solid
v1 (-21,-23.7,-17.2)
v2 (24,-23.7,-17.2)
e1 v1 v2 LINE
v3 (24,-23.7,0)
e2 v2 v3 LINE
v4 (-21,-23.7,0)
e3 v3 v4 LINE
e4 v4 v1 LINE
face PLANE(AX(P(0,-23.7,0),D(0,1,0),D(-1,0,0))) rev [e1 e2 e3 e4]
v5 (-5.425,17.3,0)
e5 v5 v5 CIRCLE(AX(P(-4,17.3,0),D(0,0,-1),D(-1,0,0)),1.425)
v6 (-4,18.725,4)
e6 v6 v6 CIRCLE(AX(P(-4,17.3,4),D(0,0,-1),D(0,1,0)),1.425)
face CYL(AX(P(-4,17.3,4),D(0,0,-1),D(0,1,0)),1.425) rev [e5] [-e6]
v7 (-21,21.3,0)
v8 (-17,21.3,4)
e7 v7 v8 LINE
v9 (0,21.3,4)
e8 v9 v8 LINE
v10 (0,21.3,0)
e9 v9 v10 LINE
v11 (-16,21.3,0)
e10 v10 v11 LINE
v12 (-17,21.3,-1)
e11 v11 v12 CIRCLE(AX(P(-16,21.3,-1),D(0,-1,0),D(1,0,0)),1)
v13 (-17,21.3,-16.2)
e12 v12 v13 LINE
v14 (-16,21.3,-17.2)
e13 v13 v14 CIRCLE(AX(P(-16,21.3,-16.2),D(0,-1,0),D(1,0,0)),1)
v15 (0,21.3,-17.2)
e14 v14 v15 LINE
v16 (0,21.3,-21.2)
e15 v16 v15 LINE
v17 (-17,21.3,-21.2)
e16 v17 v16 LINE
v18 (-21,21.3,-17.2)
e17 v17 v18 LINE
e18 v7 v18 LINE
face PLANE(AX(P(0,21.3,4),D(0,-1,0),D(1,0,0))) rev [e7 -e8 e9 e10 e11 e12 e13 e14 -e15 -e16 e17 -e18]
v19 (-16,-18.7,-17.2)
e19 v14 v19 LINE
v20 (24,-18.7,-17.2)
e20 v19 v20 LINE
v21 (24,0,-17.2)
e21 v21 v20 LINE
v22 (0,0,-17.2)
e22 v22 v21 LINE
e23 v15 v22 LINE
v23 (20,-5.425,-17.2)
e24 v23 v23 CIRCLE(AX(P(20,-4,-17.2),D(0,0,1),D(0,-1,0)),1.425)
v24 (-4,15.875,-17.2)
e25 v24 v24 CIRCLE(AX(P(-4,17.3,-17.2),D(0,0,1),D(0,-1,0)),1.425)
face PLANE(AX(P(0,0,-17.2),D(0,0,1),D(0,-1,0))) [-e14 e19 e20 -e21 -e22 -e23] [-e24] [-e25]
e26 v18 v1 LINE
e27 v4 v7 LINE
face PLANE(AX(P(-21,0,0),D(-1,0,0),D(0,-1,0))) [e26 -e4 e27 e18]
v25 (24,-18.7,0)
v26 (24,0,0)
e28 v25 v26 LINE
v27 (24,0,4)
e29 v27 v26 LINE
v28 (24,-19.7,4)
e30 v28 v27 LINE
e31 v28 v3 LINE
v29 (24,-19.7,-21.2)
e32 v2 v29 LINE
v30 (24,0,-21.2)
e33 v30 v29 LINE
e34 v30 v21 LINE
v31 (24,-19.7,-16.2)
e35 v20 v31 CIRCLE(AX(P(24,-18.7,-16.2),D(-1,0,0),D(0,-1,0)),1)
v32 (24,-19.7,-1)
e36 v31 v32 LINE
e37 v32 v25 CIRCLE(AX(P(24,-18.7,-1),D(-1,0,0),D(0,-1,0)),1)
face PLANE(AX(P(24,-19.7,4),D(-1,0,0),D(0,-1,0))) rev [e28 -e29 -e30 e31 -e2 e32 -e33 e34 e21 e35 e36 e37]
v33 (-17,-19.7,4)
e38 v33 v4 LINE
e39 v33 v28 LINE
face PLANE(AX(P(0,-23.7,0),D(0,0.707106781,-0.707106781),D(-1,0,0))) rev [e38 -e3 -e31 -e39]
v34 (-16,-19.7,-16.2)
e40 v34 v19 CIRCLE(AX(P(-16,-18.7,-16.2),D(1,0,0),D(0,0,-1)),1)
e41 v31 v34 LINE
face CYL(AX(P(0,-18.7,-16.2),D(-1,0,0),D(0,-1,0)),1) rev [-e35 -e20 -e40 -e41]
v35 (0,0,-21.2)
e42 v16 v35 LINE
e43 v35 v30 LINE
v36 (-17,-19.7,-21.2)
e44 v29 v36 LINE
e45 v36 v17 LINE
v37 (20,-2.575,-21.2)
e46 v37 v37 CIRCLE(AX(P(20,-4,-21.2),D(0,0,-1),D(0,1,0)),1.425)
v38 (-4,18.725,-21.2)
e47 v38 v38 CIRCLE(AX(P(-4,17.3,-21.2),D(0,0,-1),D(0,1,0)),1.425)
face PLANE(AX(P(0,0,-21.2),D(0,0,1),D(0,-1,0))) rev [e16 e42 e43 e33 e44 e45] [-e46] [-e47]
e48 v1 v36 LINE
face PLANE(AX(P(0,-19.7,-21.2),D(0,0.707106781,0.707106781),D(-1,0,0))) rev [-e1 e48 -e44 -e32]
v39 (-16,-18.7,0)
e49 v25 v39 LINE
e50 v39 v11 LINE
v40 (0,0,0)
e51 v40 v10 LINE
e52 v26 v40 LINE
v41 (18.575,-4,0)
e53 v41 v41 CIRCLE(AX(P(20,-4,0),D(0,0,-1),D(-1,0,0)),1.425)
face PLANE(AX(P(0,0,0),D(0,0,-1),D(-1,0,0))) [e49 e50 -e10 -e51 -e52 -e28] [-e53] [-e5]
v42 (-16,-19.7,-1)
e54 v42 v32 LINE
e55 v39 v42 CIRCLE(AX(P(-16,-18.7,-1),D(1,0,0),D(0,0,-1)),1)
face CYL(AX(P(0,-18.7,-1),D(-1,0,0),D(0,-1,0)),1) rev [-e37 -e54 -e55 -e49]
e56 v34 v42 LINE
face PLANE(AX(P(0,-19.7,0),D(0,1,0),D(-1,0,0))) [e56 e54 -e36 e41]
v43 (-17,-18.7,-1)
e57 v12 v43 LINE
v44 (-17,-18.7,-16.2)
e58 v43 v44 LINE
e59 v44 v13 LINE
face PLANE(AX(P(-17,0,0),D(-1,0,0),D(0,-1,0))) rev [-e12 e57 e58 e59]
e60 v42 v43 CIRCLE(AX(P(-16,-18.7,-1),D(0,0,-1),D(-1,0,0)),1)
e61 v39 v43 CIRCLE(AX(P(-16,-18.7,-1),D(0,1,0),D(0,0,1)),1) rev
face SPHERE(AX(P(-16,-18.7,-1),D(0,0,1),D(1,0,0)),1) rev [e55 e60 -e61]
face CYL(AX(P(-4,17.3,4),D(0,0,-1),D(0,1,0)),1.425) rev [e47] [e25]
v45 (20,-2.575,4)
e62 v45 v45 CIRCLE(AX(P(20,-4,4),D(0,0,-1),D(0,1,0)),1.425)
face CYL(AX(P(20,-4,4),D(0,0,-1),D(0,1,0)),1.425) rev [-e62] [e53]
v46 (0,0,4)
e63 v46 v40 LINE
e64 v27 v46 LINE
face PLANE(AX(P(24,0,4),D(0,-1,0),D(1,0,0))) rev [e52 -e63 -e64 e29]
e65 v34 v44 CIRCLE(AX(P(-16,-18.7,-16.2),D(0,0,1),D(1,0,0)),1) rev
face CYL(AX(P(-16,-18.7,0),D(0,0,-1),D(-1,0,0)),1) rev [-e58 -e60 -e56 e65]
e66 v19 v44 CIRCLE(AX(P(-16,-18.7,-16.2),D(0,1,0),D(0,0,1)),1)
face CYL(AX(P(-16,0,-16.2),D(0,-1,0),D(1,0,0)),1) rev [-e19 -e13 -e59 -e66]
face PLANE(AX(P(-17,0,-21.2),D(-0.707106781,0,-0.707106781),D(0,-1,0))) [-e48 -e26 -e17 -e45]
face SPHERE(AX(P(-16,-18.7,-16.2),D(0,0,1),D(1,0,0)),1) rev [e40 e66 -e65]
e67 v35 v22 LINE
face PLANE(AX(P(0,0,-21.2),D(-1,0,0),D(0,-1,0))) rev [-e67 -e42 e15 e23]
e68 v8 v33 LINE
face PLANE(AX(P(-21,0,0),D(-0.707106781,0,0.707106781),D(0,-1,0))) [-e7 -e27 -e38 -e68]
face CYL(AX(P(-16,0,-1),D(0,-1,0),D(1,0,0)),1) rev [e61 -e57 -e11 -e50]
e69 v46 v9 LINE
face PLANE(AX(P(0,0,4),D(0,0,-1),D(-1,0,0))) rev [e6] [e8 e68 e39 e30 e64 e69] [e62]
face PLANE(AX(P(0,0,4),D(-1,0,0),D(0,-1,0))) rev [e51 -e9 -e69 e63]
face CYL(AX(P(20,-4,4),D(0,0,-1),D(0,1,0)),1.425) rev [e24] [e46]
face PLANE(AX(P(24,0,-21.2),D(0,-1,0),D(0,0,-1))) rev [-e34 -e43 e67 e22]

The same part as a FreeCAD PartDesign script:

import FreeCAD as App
import Part
import Sketcher


def edges_at(feature, points):
    """Names of the edges that pass closest to the given points."""
    edges = feature.Shape.Edges
    near = lambda p: min(range(len(edges)), key=lambda i: edges[i].distToShape(Part.Vertex(*p))[0])
    return sorted({f"Edge{near(p) + 1}" for p in points})

doc = App.newDocument("Part")
body = doc.addObject("PartDesign::Body", "Body")

# Sketch on XY plane
sketch1 = body.newObject("Sketcher::SketchObject", "Sketch")
sketch1.AttachmentSupport = (doc.getObject("XY_Plane"), [""])
sketch1.MapMode = "FlatFace"
sketch1.addGeometry([
    Part.LineSegment(App.Vector(0, 0, 0), App.Vector(0, 21.3, 0)),  # 0
    Part.LineSegment(App.Vector(0, 21.3, 0), App.Vector(-17, 21.3, 0)),  # 1
    Part.LineSegment(App.Vector(-17, 21.3, 0), App.Vector(-17, -19.7, 0)),  # 2
    Part.LineSegment(App.Vector(-17, -19.7, 0), App.Vector(24, -19.7, 0)),  # 3
    Part.LineSegment(App.Vector(24, -19.7, 0), App.Vector(24, 0, 0)),  # 4
    Part.LineSegment(App.Vector(24, 0, 0), App.Vector(0, 0, 0)),  # 5
], False)
sketch1.addConstraint([
    Sketcher.Constraint("Coincident", 0, 2, 1, 1),
    Sketcher.Constraint("Coincident", 1, 2, 2, 1),
    Sketcher.Constraint("Coincident", 2, 2, 3, 1),
    Sketcher.Constraint("Coincident", 3, 2, 4, 1),
    Sketcher.Constraint("Coincident", 4, 2, 5, 1),
    Sketcher.Constraint("Coincident", 5, 2, 0, 1),
    Sketcher.Constraint("Vertical", 0),
    Sketcher.Constraint("Horizontal", 1),
    Sketcher.Constraint("Vertical", 2),
    Sketcher.Constraint("Horizontal", 3),
    Sketcher.Constraint("Vertical", 4),
    Sketcher.Constraint("Horizontal", 5),
    Sketcher.Constraint("Coincident", 5, 2, -1, 1),
    Sketcher.Constraint("Equal", 3, 2),
    Sketcher.Constraint("DistanceX", 1, 2, 1, 1, 17.0),
    Sketcher.Constraint("DistanceX", 3, 1, 3, 2, 41.0),
    Sketcher.Constraint("DistanceY", 0, 1, 0, 2, 21.3),
])
pad1 = body.newObject("PartDesign::Pad", "Pad")
pad1.Profile = sketch1
pad1.Length = 4

# Sketch on YZ plane
sketch2 = body.newObject("Sketcher::SketchObject", "Sketch001")
sketch2.AttachmentSupport = (doc.getObject("YZ_Plane"), [""])
sketch2.MapMode = "FlatFace"
sketch2.AttachmentOffset = App.Placement(App.Vector(0, 0, -17), App.Rotation())
sketch2.addGeometry([
    Part.LineSegment(App.Vector(21.3, -17.2, 0), App.Vector(-19.7, -17.2, 0)),
    Part.LineSegment(App.Vector(-19.7, -17.2, 0), App.Vector(-19.7, 4, 0)),
    Part.LineSegment(App.Vector(-19.7, 4, 0), App.Vector(21.3, 4, 0)),
    Part.LineSegment(App.Vector(21.3, 4, 0), App.Vector(21.3, -17.2, 0)),
], False)
sketch2.addConstraint([
    Sketcher.Constraint("Coincident", 0, 2, 1, 1),
    Sketcher.Constraint("Coincident", 1, 2, 2, 1),
    Sketcher.Constraint("Coincident", 2, 2, 3, 1),
    Sketcher.Constraint("Coincident", 3, 2, 0, 1),
    Sketcher.Constraint("Horizontal", 0),
    Sketcher.Constraint("Vertical", 1),
    Sketcher.Constraint("Horizontal", 2),
    Sketcher.Constraint("Vertical", 3),
    Sketcher.Constraint("DistanceX", 0, 2, 0, 1, 41.0),
    Sketcher.Constraint("DistanceY", 1, 1, 1, 2, 21.2),
    Sketcher.Constraint("DistanceY", -1, 1, 1, 2, 4.0),
    Sketcher.Constraint("DistanceX", 0, 2, -1, 1, 19.7),
])
pad2 = body.newObject("PartDesign::Pad", "Pad001")
pad2.Profile = sketch2
pad2.Length = 4
pad2.Reversed = True

# Sketch on XZ plane
sketch3 = body.newObject("Sketcher::SketchObject", "Sketch002")
sketch3.AttachmentSupport = (doc.getObject("XZ_Plane"), [""])
sketch3.MapMode = "FlatFace"
sketch3.AttachmentOffset = App.Placement(App.Vector(0, 0, 19.7), App.Rotation())
sketch3.addGeometry([
    Part.LineSegment(App.Vector(-21, 4, 0), App.Vector(-21, -17.2, 0)),
    Part.LineSegment(App.Vector(-21, -17.2, 0), App.Vector(24, -17.2, 0)),
    Part.LineSegment(App.Vector(24, -17.2, 0), App.Vector(24, 4, 0)),
    Part.LineSegment(App.Vector(24, 4, 0), App.Vector(-21, 4, 0)),
], False)
sketch3.addConstraint([
    Sketcher.Constraint("Coincident", 0, 2, 1, 1),
    Sketcher.Constraint("Coincident", 1, 2, 2, 1),
    Sketcher.Constraint("Coincident", 2, 2, 3, 1),
    Sketcher.Constraint("Coincident", 3, 2, 0, 1),
    Sketcher.Constraint("Vertical", 0),
    Sketcher.Constraint("Horizontal", 1),
    Sketcher.Constraint("Vertical", 2),
    Sketcher.Constraint("Horizontal", 3),
    Sketcher.Constraint("DistanceX", 1, 1, 1, 2, 45.0),
    Sketcher.Constraint("DistanceY", 0, 2, 0, 1, 21.2),
    Sketcher.Constraint("DistanceX", 0, 2, -1, 1, 21.0),
    Sketcher.Constraint("DistanceY", -1, 1, 2, 2, 4.0),
])
pad3 = body.newObject("PartDesign::Pad", "Pad002")
pad3.Profile = sketch3
pad3.Length = 4

# Sketch on XY plane
sketch4 = body.newObject("Sketcher::SketchObject", "Sketch003")
sketch4.AttachmentSupport = (doc.getObject("XY_Plane"), [""])
sketch4.MapMode = "FlatFace"
sketch4.AttachmentOffset = App.Placement(App.Vector(0, 0, -17.2), App.Rotation())
sketch4.addGeometry([
    Part.LineSegment(App.Vector(24, 0, 0), App.Vector(24, -23.7, 0)),  # 0
    Part.LineSegment(App.Vector(24, -23.7, 0), App.Vector(-21, -23.7, 0)),  # 1
    Part.LineSegment(App.Vector(-21, -23.7, 0), App.Vector(-21, 21.3, 0)),  # 2
    Part.LineSegment(App.Vector(-21, 21.3, 0), App.Vector(0, 21.3, 0)),  # 3
    Part.LineSegment(App.Vector(0, 21.3, 0), App.Vector(0, 0, 0)),  # 4
    Part.LineSegment(App.Vector(0, 0, 0), App.Vector(24, 0, 0)),  # 5
], False)
sketch4.addConstraint([
    Sketcher.Constraint("Coincident", 0, 2, 1, 1),
    Sketcher.Constraint("Coincident", 1, 2, 2, 1),
    Sketcher.Constraint("Coincident", 2, 2, 3, 1),
    Sketcher.Constraint("Coincident", 3, 2, 4, 1),
    Sketcher.Constraint("Coincident", 4, 2, 5, 1),
    Sketcher.Constraint("Coincident", 5, 2, 0, 1),
    Sketcher.Constraint("Vertical", 0),
    Sketcher.Constraint("Horizontal", 1),
    Sketcher.Constraint("Vertical", 2),
    Sketcher.Constraint("Horizontal", 3),
    Sketcher.Constraint("Vertical", 4),
    Sketcher.Constraint("Horizontal", 5),
    Sketcher.Constraint("Coincident", 4, 2, -1, 1),
    Sketcher.Constraint("Equal", 1, 2),
    Sketcher.Constraint("DistanceX", 1, 2, 1, 1, 45.0),
    Sketcher.Constraint("DistanceX", 3, 1, 3, 2, 21.0),
    Sketcher.Constraint("DistanceY", 0, 2, 0, 1, 23.7),
])
pad4 = body.newObject("PartDesign::Pad", "Pad003")
pad4.Profile = sketch4
pad4.Length = 4
pad4.Reversed = True
doc.recompute()

fillet = body.newObject("PartDesign::Fillet", "Fillet")
fillet.Base = (pad4, edges_at(pad4, [
    (-17, -19.7, -8.6),
    (-17, 0.8, -17.2),
    (3.5, -19.7, -17.2),
    (3.5, -19.7, 0),
    (-17, 0.8, 0),
]))
fillet.Radius = 1
doc.recompute()

chamfer = body.newObject("PartDesign::Chamfer", "Chamfer")
chamfer.Base = (fillet, edges_at(fillet, [
    (-21, -1.2, 4),
    (1.5, -23.7, 4),
    (1.5, -23.7, -21.2),
    (-21, -1.2, -21.2),
]))
chamfer.Size = 4

# Sketch on XY plane
sketch5 = body.newObject("Sketcher::SketchObject", "Sketch004")
sketch5.AttachmentSupport = (doc.getObject("XY_Plane"), [""])
sketch5.MapMode = "FlatFace"
sketch5.AttachmentOffset = App.Placement(App.Vector(0, 0, -21.2), App.Rotation())
sketch5.addGeometry([
    Part.Circle(App.Vector(20, -4, 0), App.Vector(0, 0, 1), 1.425),
    Part.Circle(App.Vector(-4, 17.3, 0), App.Vector(0, 0, 1), 1.425),
], False)
sketch5.addConstraint([
    Sketcher.Constraint("Equal", 0, 1),
    Sketcher.Constraint("Diameter", 0, 2.85),
    Sketcher.Constraint("DistanceX", -1, 1, 0, 3, 20.0),
    Sketcher.Constraint("DistanceY", 0, 3, -1, 1, 4.0),
    Sketcher.Constraint("DistanceX", 1, 3, -1, 1, 4.0),
    Sketcher.Constraint("DistanceY", -1, 1, 1, 3, 17.3),
])
pocket1 = body.newObject("PartDesign::Pocket", "Pocket")
pocket1.Profile = sketch5
pocket1.Type = "ThroughAll"
pocket1.Reversed = True

doc.recompute()
